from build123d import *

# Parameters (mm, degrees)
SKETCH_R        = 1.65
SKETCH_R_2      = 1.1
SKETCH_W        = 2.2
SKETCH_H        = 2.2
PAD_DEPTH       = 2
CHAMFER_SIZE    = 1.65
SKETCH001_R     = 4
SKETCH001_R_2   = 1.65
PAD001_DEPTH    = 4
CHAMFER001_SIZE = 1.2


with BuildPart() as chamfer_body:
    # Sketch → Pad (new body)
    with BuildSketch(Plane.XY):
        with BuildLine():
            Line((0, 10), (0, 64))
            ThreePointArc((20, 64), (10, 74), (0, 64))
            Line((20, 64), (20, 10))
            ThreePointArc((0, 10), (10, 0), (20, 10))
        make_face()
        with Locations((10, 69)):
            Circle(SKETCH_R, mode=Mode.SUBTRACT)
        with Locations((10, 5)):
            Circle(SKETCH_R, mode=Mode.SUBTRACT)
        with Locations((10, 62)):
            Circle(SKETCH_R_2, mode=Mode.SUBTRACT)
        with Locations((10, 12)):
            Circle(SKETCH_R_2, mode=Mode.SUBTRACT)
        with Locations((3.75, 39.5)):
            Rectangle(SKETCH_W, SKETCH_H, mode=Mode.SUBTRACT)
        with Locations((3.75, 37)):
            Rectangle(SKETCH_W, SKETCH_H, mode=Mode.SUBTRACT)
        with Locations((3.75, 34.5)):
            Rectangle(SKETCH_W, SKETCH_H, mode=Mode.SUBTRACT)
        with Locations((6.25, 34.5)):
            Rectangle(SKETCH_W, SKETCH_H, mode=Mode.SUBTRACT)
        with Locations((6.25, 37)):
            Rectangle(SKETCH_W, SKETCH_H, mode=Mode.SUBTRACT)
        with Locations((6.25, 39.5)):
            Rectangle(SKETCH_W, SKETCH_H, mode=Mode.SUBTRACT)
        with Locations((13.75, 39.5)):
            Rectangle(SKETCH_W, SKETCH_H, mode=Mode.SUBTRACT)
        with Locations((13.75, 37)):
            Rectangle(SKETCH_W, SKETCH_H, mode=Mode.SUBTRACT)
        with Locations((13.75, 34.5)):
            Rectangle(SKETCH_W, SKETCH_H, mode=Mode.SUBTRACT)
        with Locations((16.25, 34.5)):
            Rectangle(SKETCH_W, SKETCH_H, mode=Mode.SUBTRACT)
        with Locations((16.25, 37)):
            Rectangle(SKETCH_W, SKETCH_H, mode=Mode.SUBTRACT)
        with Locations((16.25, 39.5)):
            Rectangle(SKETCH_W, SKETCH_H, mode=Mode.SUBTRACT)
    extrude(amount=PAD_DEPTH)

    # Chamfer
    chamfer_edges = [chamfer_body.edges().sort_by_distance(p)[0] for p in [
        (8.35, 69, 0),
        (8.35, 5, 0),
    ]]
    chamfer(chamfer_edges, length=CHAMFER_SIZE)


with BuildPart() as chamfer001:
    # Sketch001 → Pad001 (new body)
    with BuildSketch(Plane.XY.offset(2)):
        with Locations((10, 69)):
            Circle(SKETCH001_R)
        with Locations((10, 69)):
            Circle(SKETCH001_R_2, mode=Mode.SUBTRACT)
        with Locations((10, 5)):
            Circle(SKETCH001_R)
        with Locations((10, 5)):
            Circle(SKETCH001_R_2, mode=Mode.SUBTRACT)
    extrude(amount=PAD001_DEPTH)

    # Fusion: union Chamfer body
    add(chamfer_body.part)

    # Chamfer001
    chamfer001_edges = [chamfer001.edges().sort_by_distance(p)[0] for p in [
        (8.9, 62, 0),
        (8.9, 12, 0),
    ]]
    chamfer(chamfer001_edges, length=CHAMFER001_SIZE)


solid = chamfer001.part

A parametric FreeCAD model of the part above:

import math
import FreeCAD as App
import Part
import Sketcher
from FreeCAD import Vector
Q = App.Units.Quantity


def edges_at(feature, points):
    """Names of the edges that pass closest to the given points."""
    edges = feature.Shape.Edges
    near = lambda p: min(range(len(edges)), key=lambda i: edges[i].distToShape(Part.Vertex(*p))[0])
    return sorted({f"Edge{near(p) + 1}" for p in points})

doc = App.newDocument("Part")
body = doc.addObject("PartDesign::Body", "Body")

sketch1 = body.newObject("Sketcher::SketchObject", "Sketch")
sketch1.AttachmentSupport = (doc.getObject("XY_Plane"), [""])
sketch1.MapMode = "FlatFace"
sketch1.addGeometry([
    Part.LineSegment(Vector(0, 64, 0), Vector(0, 10, 0)),
    Part.ArcOfCircle(Part.Circle(Vector(10, 10, 0), Vector(0, 0, 1), 10), math.radians(180), math.radians(360)),
    Part.LineSegment(Vector(20, 10, 0), Vector(20, 64, 0)),
    Part.ArcOfCircle(Part.Circle(Vector(10, 64, 0), Vector(0, 0, 1), 10), math.radians(0), math.radians(180)),
    Part.LineSegment(Vector(15.2, 33.4, 0), Vector(15.2, 35.6, 0)),
    Part.LineSegment(Vector(15.2, 35.6, 0), Vector(17.4, 35.6, 0)),
    Part.LineSegment(Vector(17.4, 35.6, 0), Vector(17.4, 33.4, 0)),
    Part.LineSegment(Vector(17.4, 33.4, 0), Vector(15.2, 33.4, 0)),
    Part.LineSegment(Vector(12.7, 33.4, 0), Vector(12.7, 35.6, 0)),
    Part.LineSegment(Vector(12.7, 35.6, 0), Vector(14.8, 35.6, 0)),
    Part.LineSegment(Vector(14.8, 35.6, 0), Vector(14.8, 33.4, 0)),
    Part.LineSegment(Vector(14.8, 33.4, 0), Vector(12.7, 33.4, 0)),
    Part.Circle(Vector(10, 5, 0), Vector(0, 0, 1), 1.6),
    Part.Circle(Vector(10, 12, 0), Vector(0, 0, 1), 1.1),
    Part.LineSegment(Vector(5.2, 33.4, 0), Vector(5.2, 35.6, 0)),
    Part.LineSegment(Vector(5.2, 35.6, 0), Vector(7.3, 35.6, 0)),
    Part.LineSegment(Vector(7.3, 35.6, 0), Vector(7.3, 33.4, 0)),
    Part.LineSegment(Vector(7.3, 33.4, 0), Vector(5.2, 33.4, 0)),
    Part.LineSegment(Vector(2.6, 33.4, 0), Vector(2.6, 35.6, 0)),
    Part.LineSegment(Vector(2.6, 35.6, 0), Vector(4.8, 35.6, 0)),
    Part.LineSegment(Vector(4.8, 35.6, 0), Vector(4.8, 33.4, 0)),
    Part.LineSegment(Vector(4.8, 33.4, 0), Vector(2.6, 33.4, 0)),
    Part.LineSegment(Vector(15.2, 35.9, 0), Vector(15.2, 38.1, 0)),
    Part.LineSegment(Vector(15.2, 38.1, 0), Vector(17.4, 38.1, 0)),
    Part.LineSegment(Vector(17.4, 38.1, 0), Vector(17.4, 35.9, 0)),
    Part.LineSegment(Vector(17.4, 35.9, 0), Vector(15.2, 35.9, 0)),
    Part.LineSegment(Vector(15.2, 38.4, 0), Vector(15.2, 40.6, 0)),
    Part.LineSegment(Vector(15.2, 40.6, 0), Vector(17.4, 40.6, 0)),
    Part.LineSegment(Vector(17.4, 40.6, 0), Vector(17.4, 38.4, 0)),
    Part.LineSegment(Vector(17.4, 38.4, 0), Vector(15.2, 38.4, 0)),
    Part.LineSegment(Vector(12.7, 35.9, 0), Vector(12.7, 38.1, 0)),
    Part.LineSegment(Vector(12.7, 38.1, 0), Vector(14.8, 38.1, 0)),
    Part.LineSegment(Vector(14.8, 38.1, 0), Vector(14.8, 35.9, 0)),
    Part.LineSegment(Vector(14.8, 35.9, 0), Vector(12.7, 35.9, 0)),
    Part.LineSegment(Vector(12.7, 38.4, 0), Vector(12.7, 40.6, 0)),
    Part.LineSegment(Vector(12.7, 40.6, 0), Vector(14.8, 40.6, 0)),
    Part.LineSegment(Vector(14.8, 40.6, 0), Vector(14.8, 38.4, 0)),
    Part.LineSegment(Vector(14.8, 38.4, 0), Vector(12.7, 38.4, 0)),
    Part.LineSegment(Vector(5.2, 35.9, 0), Vector(5.2, 38.1, 0)),
    Part.LineSegment(Vector(5.2, 38.1, 0), Vector(7.3, 38.1, 0)),
    Part.LineSegment(Vector(7.3, 38.1, 0), Vector(7.3, 35.9, 0)),
    Part.LineSegment(Vector(7.3, 35.9, 0), Vector(5.2, 35.9, 0)),
    Part.LineSegment(Vector(5.2, 38.4, 0), Vector(5.2, 40.6, 0)),
    Part.LineSegment(Vector(5.2, 40.6, 0), Vector(7.3, 40.6, 0)),
    Part.LineSegment(Vector(7.3, 40.6, 0), Vector(7.3, 38.4, 0)),
    Part.LineSegment(Vector(7.3, 38.4, 0), Vector(5.2, 38.4, 0)),
    Part.LineSegment(Vector(2.6, 35.9, 0), Vector(2.6, 38.1, 0)),
    Part.LineSegment(Vector(2.6, 38.1, 0), Vector(4.8, 38.1, 0)),
    Part.LineSegment(Vector(4.8, 38.1, 0), Vector(4.8, 35.9, 0)),
    Part.LineSegment(Vector(4.8, 35.9, 0), Vector(2.6, 35.9, 0)),
    Part.LineSegment(Vector(2.6, 38.4, 0), Vector(2.6, 40.6, 0)),
    Part.LineSegment(Vector(2.6, 40.6, 0), Vector(4.8, 40.6, 0)),
    Part.LineSegment(Vector(4.8, 40.6, 0), Vector(4.8, 38.4, 0)),
    Part.LineSegment(Vector(4.8, 38.4, 0), Vector(2.6, 38.4, 0)),
    Part.Circle(Vector(10, 62, 0), Vector(0, 0, 1), 1.1),
    Part.Circle(Vector(10, 69, 0), Vector(0, 0, 1), 1.6),
], False)
sketch1.addConstraint([
    Sketcher.Constraint("Tangent", 0, 2, 1, 1),
    Sketcher.Constraint("Tangent", 1, 2, 2, 1),
    Sketcher.Constraint("Tangent", 2, 2, 3, 1),
    Sketcher.Constraint("Tangent", 3, 2, 0, 1),
    Sketcher.Constraint("Coincident", 4, 2, 5, 1),
    Sketcher.Constraint("Coincident", 5, 2, 6, 1),
    Sketcher.Constraint("Coincident", 6, 2, 7, 1),
    Sketcher.Constraint("Coincident", 7, 2, 4, 1),
    Sketcher.Constraint("Coincident", 8, 2, 9, 1),
    Sketcher.Constraint("Coincident", 9, 2, 10, 1),
    Sketcher.Constraint("Coincident", 10, 2, 11, 1),
    Sketcher.Constraint("Coincident", 11, 2, 8, 1),
    Sketcher.Constraint("Coincident", 14, 2, 15, 1),
    Sketcher.Constraint("Coincident", 15, 2, 16, 1),
    Sketcher.Constraint("Coincident", 16, 2, 17, 1),
    Sketcher.Constraint("Coincident", 17, 2, 14, 1),
    Sketcher.Constraint("Coincident", 18, 2, 19, 1),
    Sketcher.Constraint("Coincident", 19, 2, 20, 1),
    Sketcher.Constraint("Coincident", 20, 2, 21, 1),
    Sketcher.Constraint("Coincident", 21, 2, 18, 1),
    Sketcher.Constraint("Coincident", 22, 2, 23, 1),
    Sketcher.Constraint("Coincident", 23, 2, 24, 1),
    Sketcher.Constraint("Coincident", 24, 2, 25, 1),
    Sketcher.Constraint("Coincident", 25, 2, 22, 1),
    Sketcher.Constraint("Coincident", 26, 2, 27, 1),
    Sketcher.Constraint("Coincident", 27, 2, 28, 1),
    Sketcher.Constraint("Coincident", 28, 2, 29, 1),
    Sketcher.Constraint("Coincident", 29, 2, 26, 1),
    Sketcher.Constraint("Coincident", 30, 2, 31, 1),
    Sketcher.Constraint("Coincident", 31, 2, 32, 1),
    Sketcher.Constraint("Coincident", 32, 2, 33, 1),
    Sketcher.Constraint("Coincident", 33, 2, 30, 1),
    Sketcher.Constraint("Coincident", 34, 2, 35, 1),
    Sketcher.Constraint("Coincident", 35, 2, 36, 1),
    Sketcher.Constraint("Coincident", 36, 2, 37, 1),
    Sketcher.Constraint("Coincident", 37, 2, 34, 1),
    Sketcher.Constraint("Coincident", 38, 2, 39, 1),
    Sketcher.Constraint("Coincident", 39, 2, 40, 1),
    Sketcher.Constraint("Coincident", 40, 2, 41, 1),
    Sketcher.Constraint("Coincident", 41, 2, 38, 1),
    Sketcher.Constraint("Coincident", 42, 2, 43, 1),
    Sketcher.Constraint("Coincident", 43, 2, 44, 1),
    Sketcher.Constraint("Coincident", 44, 2, 45, 1),
    Sketcher.Constraint("Coincident", 45, 2, 42, 1),
    Sketcher.Constraint("Coincident", 46, 2, 47, 1),
    Sketcher.Constraint("Coincident", 47, 2, 48, 1),
    Sketcher.Constraint("Coincident", 48, 2, 49, 1),
    Sketcher.Constraint("Coincident", 49, 2, 46, 1),
    Sketcher.Constraint("Coincident", 50, 2, 51, 1),
    Sketcher.Constraint("Coincident", 51, 2, 52, 1),
    Sketcher.Constraint("Coincident", 52, 2, 53, 1),
    Sketcher.Constraint("Coincident", 53, 2, 50, 1),
    Sketcher.Constraint("Vertical", 0),
    Sketcher.Constraint("Vertical", 2),
    Sketcher.Constraint("Vertical", 4),
    Sketcher.Constraint("Horizontal", 5),
    Sketcher.Constraint("Vertical", 6),
    Sketcher.Constraint("Horizontal", 7),
    Sketcher.Constraint("Vertical", 8),
    Sketcher.Constraint("Horizontal", 9),
    Sketcher.Constraint("Vertical", 10),
    Sketcher.Constraint("Horizontal", 11),
    Sketcher.Constraint("Vertical", 14),
    Sketcher.Constraint("Horizontal", 15),
    Sketcher.Constraint("Vertical", 16),
    Sketcher.Constraint("Horizontal", 17),
    Sketcher.Constraint("Vertical", 18),
    Sketcher.Constraint("Horizontal", 19),
    Sketcher.Constraint("Vertical", 20),
    Sketcher.Constraint("Horizontal", 21),
    Sketcher.Constraint("Vertical", 22),
    Sketcher.Constraint("Horizontal", 23),
    Sketcher.Constraint("Vertical", 24),
    Sketcher.Constraint("Horizontal", 25),
    Sketcher.Constraint("Vertical", 26),
    Sketcher.Constraint("Horizontal", 27),
    Sketcher.Constraint("Vertical", 28),
    Sketcher.Constraint("Horizontal", 29),
    Sketcher.Constraint("Vertical", 30),
    Sketcher.Constraint("Horizontal", 31),
    Sketcher.Constraint("Vertical", 32),
    Sketcher.Constraint("Horizontal", 33),
    Sketcher.Constraint("Vertical", 34),
    Sketcher.Constraint("Horizontal", 35),
    Sketcher.Constraint("Vertical", 36),
    Sketcher.Constraint("Horizontal", 37),
    Sketcher.Constraint("Vertical", 38),
    Sketcher.Constraint("Horizontal", 39),
    Sketcher.Constraint("Vertical", 40),
    Sketcher.Constraint("Horizontal", 41),
    Sketcher.Constraint("Vertical", 42),
    Sketcher.Constraint("Horizontal", 43),
    Sketcher.Constraint("Vertical", 44),
    Sketcher.Constraint("Horizontal", 45),
    Sketcher.Constraint("Vertical", 46),
    Sketcher.Constraint("Horizontal", 47),
    Sketcher.Constraint("Vertical", 48),
    Sketcher.Constraint("Horizontal", 49),
    Sketcher.Constraint("Vertical", 50),
    Sketcher.Constraint("Horizontal", 51),
    Sketcher.Constraint("Vertical", 52),
    Sketcher.Constraint("Horizontal", 53),
    Sketcher.Constraint("Equal", 13, 54),
    Sketcher.Constraint("Equal", 12, 55),
    Sketcher.Constraint("PointOnObject", 0, 2, -2),
    Sketcher.Constraint("Horizontal", 5, 2, 8, 2),
    Sketcher.Constraint("Horizontal", 7, 2, 10, 2),
    Sketcher.Constraint("Horizontal", 9, 2, 14, 2),
    Sketcher.Constraint("Horizontal", 11, 2, 16, 2),
    Sketcher.Constraint("Horizontal", 15, 2, 18, 2),
    Sketcher.Constraint("Horizontal", 17, 2, 20, 2),
    Sketcher.Constraint("Horizontal", 23, 2, 30, 2),
    Sketcher.Constraint("Horizontal", 25, 2, 32, 2),
    Sketcher.Constraint("Horizontal", 27, 2, 34, 2),
    Sketcher.Constraint("Horizontal", 29, 2, 36, 2),
    Sketcher.Constraint("Horizontal", 31, 2, 38, 2),
    Sketcher.Constraint("Horizontal", 33, 2, 40, 2),
    Sketcher.Constraint("Horizontal", 35, 2, 42, 2),
    Sketcher.Constraint("Horizontal", 37, 2, 44, 2),
    Sketcher.Constraint("Horizontal", 39, 2, 46, 2),
    Sketcher.Constraint("Horizontal", 41, 2, 48, 2),
    Sketcher.Constraint("Horizontal", 43, 2, 50, 2),
    Sketcher.Constraint("Horizontal", 45, 2, 52, 2),
    Sketcher.Constraint("Vertical", 3, 3, 12, 3),
    Sketcher.Constraint("Vertical", 12, 3, 13, 3),
    Sketcher.Constraint("Vertical", 13, 3, 54, 3),
    Sketcher.Constraint("Vertical", 54, 3, 55, 3),
    Sketcher.Constraint("Vertical", 7, 2, 22, 2),
    Sketcher.Constraint("Vertical", 6, 2, 23, 2),
    Sketcher.Constraint("Vertical", 25, 2, 26, 2),
    Sketcher.Constraint("Vertical", 24, 2, 27, 2),
    Sketcher.Constraint("Vertical", 11, 2, 30, 2),
    Sketcher.Constraint("Vertical", 10, 2, 31, 2),
    Sketcher.Constraint("Vertical", 33, 2, 34, 2),
    Sketcher.Constraint("Vertical", 32, 2, 35, 2),
    Sketcher.Constraint("Vertical", 17, 2, 38, 2),
    Sketcher.Constraint("Vertical", 16, 2, 39, 2),
    Sketcher.Constraint("Vertical", 41, 2, 42, 2),
    Sketcher.Constraint("Vertical", 40, 2, 43, 2),
    Sketcher.Constraint("Vertical", 21, 2, 46, 2),
    Sketcher.Constraint("Vertical", 20, 2, 47, 2),
    Sketcher.Constraint("Vertical", 49, 2, 50, 2),
    Sketcher.Constraint("Vertical", 48, 2, 51, 2),
    Sketcher.Constraint("Equal", 7, 9),
    Sketcher.Constraint("Equal", 11, 15),
    Sketcher.Constraint("Equal", 17, 19),
    Sketcher.Constraint("Equal", 53, 4),
    Sketcher.Constraint("Equal", 20, 22),
    Sketcher.Constraint("Equal", 24, 26),
    Sketcher.Constraint("Radius", 1, Q("10 mm")),
    Sketcher.Constraint("Diameter", 12, Q("3.3 mm")),
    Sketcher.Constraint("Diameter", 13, Q("2.2 mm")),
    Sketcher.Constraint("DistanceY", 0, 2, 0, 1, Q("54 mm")),
    Sketcher.Constraint("DistanceX", 5, 1, 5, 2, Q("2.2 mm")),
    Sketcher.Constraint("DistanceY", -1, 1, 1, 3, Q("10 mm")),
    Sketcher.Constraint("DistanceY", -1, 1, 12, 3, Q("5 mm")),
    Sketcher.Constraint("DistanceY", -1, 1, 13, 3, Q("12 mm")),
    Sketcher.Constraint("DistanceY", -1, 1, 54, 3, Q("62 mm")),
    Sketcher.Constraint("DistanceY", -1, 1, 55, 3, Q("69 mm")),
    Sketcher.Constraint("DistanceX", 14, 2, 4, 2, Q("10 mm")),
    Sketcher.Constraint("DistanceX", 18, 2, 8, 2, Q("10 mm")),
    Sketcher.Constraint("DistanceY", 4, 2, 26, 2, Q("5 mm")),
    Sketcher.Constraint("DistanceY", -1, 1, 4, 2, Q("35.6 mm")),
    Sketcher.Constraint("DistanceY", -1, 1, 22, 2, Q("38.1 mm")),
    Sketcher.Constraint("DistanceX", 8, 2, 4, 2, Q("2.5 mm")),
    Sketcher.Constraint("DistanceX", -1, 1, 4, 2, Q("15.15 mm")),
])
pad1 = body.newObject("PartDesign::Pad", "Pad")
pad1.Profile = sketch1
pad1.Length = 2
doc.recompute()

chamfer = body.newObject("PartDesign::Chamfer", "Chamfer")
chamfer.Base = (pad1, edges_at(pad1, [(8.35, 69, 0), (8.35, 5, 0)]))
chamfer.Size = 1.65
body2 = doc.addObject("PartDesign::Body", "Body001")
body2.AllowCompound = True

sketch2 = body2.newObject("Sketcher::SketchObject", "Sketch001")
sketch2.AttachmentSupport = (doc.getObject("XY_Plane001"), [""])
sketch2.MapMode = "FlatFace"
sketch2.AttachmentOffset = App.Placement(Vector(0, 0, 2), App.Rotation())
sketch2.addGeometry([
    Part.Circle(Vector(10, 69, 0), Vector(0, 0, 1), 4),
    Part.Circle(Vector(10, 69, 0), Vector(0, 0, 1), 1.6),
    Part.Circle(Vector(10, 5, 0), Vector(0, 0, 1), 4),
    Part.Circle(Vector(10, 5, 0), Vector(0, 0, 1), 1.6),
], False)
sketch2.addConstraint([
    Sketcher.Constraint("Coincident", 1, 3, 0, 3),
    Sketcher.Constraint("Coincident", 3, 3, 2, 3),
    Sketcher.Constraint("Equal", 0, 2),
    Sketcher.Constraint("Equal", 1, 3),
    Sketcher.Constraint("Vertical", 1, 3, 2, 3),
    Sketcher.Constraint("Diameter", 0, Q("8 mm")),
    Sketcher.Constraint("Diameter", 1, Q("3.3 mm")),
    Sketcher.Constraint("DistanceX", -1, 1, 0, 3, Q("10 mm")),
    Sketcher.Constraint("DistanceY", -1, 1, 0, 3, Q("69 mm")),
    Sketcher.Constraint("DistanceY", -1, 1, 2, 3, Q("5 mm")),
])
pad2 = body2.newObject("PartDesign::Pad", "Pad001")
pad2.Profile = sketch2
pad2.Length = 4
doc.recompute()

boolean = body2.newObject("PartDesign::Boolean", "Boolean")
boolean.Type = "Fuse"
boolean.addObjects([body])
doc.recompute()

chamfer2 = body2.newObject("PartDesign::Chamfer", "Chamfer001")
chamfer2.Base = (boolean, edges_at(boolean, [(8.9, 62, 0), (8.9, 12, 0)]))
chamfer2.Size = 1.2

doc.recompute()
